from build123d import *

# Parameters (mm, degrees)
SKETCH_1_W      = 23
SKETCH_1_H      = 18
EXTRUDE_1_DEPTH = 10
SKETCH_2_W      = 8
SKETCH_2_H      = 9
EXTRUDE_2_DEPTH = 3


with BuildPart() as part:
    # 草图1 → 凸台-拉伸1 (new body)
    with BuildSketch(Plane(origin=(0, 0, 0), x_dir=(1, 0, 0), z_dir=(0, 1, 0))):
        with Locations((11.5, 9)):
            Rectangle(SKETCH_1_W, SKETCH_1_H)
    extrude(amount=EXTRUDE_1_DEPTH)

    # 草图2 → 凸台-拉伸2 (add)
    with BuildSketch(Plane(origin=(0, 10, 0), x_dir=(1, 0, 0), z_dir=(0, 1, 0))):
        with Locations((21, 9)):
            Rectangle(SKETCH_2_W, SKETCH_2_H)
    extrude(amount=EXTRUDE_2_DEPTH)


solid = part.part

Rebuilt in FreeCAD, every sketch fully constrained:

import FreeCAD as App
import Part
import Sketcher
from FreeCAD import Vector
Q = App.Units.Quantity


def add_polygon(sketch, points):
    """Adds a closed chain of lines whose ends are joined by coincident constraints."""
    first, n = sketch.GeometryCount, len(points)
    for a, b in zip(points, points[1:] + points[:1]):
        sketch.addGeometry(Part.LineSegment(App.Vector(*a, 0), App.Vector(*b, 0)), False)
    for i in range(n):
        sketch.addConstraint(Sketcher.Constraint("Coincident", first + i, 2, first + (i + 1) % n, 1))

doc = App.newDocument("Part")
body = doc.addObject("PartDesign::Body", "Body")

# Sketch on XZ plane
sketch1 = body.newObject("Sketcher::SketchObject", "Sketch")
sketch1.AttachmentSupport = (doc.getObject("XZ_Plane"), [""])
sketch1.MapMode = "FlatFace"
add_polygon(sketch1, [(0, -18), (0, 0), (23, 0), (23, -18)])  # lines 0-3
sketch1.addConstraint([
    Sketcher.Constraint("Vertical", 0),
    Sketcher.Constraint("Horizontal", 1),
    Sketcher.Constraint("Vertical", 2),
    Sketcher.Constraint("Horizontal", 3),
    Sketcher.Constraint("Coincident", 0, 2, -1, 1),
    Sketcher.Constraint("DistanceX", 1, 1, 1, 2, Q("23 mm")),
    Sketcher.Constraint("DistanceY", 0, 1, 0, 2, Q("18 mm")),
])
pad1 = body.newObject("PartDesign::Pad", "Pad")
pad1.Profile = sketch1
pad1.Length = 10
pad1.Reversed = True

# Sketch on XZ plane
sketch2 = body.newObject("Sketcher::SketchObject", "Sketch001")
sketch2.AttachmentSupport = (doc.getObject("XZ_Plane"), [""])
sketch2.MapMode = "FlatFace"
sketch2.AttachmentOffset = App.Placement(Vector(0, 0, -10), App.Rotation())
add_polygon(sketch2, [(17, -14), (17, -4), (25, -4), (25, -14)])  # lines 0-3
sketch2.addConstraint([
    Sketcher.Constraint("Vertical", 0),
    Sketcher.Constraint("Horizontal", 1),
    Sketcher.Constraint("Vertical", 2),
    Sketcher.Constraint("Horizontal", 3),
    Sketcher.Constraint("DistanceX", 1, 1, 1, 2, Q("8 mm")),
    Sketcher.Constraint("DistanceY", 0, 1, 0, 2, Q("9 mm")),
    Sketcher.Constraint("DistanceX", -1, 1, 0, 2, Q("17 mm")),
    Sketcher.Constraint("DistanceY", 0, 2, -1, 1, Q("4.5 mm")),
])
pad2 = body.newObject("PartDesign::Pad", "Pad001")
pad2.Profile = sketch2
pad2.Length = 3
pad2.Reversed = True

doc.recompute()
